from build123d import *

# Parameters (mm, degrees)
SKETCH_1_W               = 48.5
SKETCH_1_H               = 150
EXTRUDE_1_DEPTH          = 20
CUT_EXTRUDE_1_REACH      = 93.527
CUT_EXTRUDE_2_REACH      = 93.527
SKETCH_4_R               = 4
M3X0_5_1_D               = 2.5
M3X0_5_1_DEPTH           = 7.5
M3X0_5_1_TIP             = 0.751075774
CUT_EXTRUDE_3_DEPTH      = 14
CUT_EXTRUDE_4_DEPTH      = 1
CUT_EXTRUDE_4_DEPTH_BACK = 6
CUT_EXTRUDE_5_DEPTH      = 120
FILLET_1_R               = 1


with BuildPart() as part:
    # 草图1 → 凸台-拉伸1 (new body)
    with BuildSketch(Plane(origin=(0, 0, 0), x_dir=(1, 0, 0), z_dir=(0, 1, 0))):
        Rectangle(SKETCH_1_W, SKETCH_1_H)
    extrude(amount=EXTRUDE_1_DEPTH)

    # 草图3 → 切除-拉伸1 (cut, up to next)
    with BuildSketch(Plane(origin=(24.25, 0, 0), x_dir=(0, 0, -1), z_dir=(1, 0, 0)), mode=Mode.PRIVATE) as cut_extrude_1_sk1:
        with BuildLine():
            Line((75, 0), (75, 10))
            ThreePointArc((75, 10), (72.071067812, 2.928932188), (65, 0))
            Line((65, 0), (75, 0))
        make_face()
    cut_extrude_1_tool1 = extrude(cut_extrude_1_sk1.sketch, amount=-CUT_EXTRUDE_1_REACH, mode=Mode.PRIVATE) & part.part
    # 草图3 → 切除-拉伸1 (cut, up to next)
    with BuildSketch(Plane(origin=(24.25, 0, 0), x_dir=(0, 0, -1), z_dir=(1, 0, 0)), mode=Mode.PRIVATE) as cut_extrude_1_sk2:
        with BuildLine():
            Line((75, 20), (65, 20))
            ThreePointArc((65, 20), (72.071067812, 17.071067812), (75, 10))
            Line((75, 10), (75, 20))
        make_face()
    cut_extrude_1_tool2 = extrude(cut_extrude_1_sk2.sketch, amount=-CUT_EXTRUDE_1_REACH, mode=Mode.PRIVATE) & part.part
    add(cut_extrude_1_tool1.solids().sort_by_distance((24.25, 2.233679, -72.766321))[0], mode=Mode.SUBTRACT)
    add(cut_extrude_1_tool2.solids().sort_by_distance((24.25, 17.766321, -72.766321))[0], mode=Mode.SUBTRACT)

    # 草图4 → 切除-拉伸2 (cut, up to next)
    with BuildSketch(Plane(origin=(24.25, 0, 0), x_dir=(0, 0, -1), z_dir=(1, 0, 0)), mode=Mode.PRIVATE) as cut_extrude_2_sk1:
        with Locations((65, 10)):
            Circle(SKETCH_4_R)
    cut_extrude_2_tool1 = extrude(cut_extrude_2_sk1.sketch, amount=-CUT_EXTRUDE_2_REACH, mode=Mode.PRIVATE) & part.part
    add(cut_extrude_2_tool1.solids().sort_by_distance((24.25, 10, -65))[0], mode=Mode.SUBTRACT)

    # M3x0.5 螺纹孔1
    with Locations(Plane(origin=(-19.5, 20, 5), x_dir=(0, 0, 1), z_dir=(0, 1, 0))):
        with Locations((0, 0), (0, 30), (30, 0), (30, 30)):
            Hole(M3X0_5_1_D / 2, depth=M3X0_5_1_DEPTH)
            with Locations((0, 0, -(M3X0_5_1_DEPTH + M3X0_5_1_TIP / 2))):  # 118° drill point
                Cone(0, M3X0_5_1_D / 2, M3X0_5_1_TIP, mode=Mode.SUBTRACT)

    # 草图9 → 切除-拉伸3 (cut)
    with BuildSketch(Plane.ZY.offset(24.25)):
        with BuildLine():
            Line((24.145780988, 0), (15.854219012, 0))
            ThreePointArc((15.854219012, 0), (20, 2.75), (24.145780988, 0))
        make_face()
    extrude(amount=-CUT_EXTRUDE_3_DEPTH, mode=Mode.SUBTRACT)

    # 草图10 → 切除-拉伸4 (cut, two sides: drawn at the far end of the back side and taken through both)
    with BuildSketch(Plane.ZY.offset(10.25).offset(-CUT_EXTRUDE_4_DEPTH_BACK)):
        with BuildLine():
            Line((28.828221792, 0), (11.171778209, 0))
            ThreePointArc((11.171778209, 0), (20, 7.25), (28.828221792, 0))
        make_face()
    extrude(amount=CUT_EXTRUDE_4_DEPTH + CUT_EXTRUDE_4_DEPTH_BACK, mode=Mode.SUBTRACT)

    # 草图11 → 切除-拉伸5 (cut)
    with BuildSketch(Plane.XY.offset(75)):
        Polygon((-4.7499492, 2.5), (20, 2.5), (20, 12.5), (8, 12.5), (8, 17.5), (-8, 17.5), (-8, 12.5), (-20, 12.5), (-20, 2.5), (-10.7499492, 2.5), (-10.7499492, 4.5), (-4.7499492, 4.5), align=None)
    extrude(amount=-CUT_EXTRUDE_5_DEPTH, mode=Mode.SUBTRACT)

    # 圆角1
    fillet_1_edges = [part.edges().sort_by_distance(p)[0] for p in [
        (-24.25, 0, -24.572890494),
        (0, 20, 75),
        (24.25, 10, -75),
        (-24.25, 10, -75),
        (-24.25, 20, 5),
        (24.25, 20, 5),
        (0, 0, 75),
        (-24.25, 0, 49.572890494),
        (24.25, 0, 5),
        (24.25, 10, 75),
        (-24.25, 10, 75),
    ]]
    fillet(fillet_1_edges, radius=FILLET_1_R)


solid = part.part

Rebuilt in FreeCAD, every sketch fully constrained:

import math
import FreeCAD as App
import Part
import Sketcher

V = App.Vector


def edges_at(feature, points):
    """Names of the edges that pass closest to the given points."""
    edges = feature.Shape.Edges
    near = lambda p: min(range(len(edges)), key=lambda i: edges[i].distToShape(Part.Vertex(*p))[0])
    return sorted({f"Edge{near(p) + 1}" for p in points})


def add_polygon(sketch, points):
    """Adds a closed chain of lines whose ends are joined by coincident constraints."""
    first, n = sketch.GeometryCount, len(points)
    for a, b in zip(points, points[1:] + points[:1]):
        sketch.addGeometry(Part.LineSegment(App.Vector(*a, 0), App.Vector(*b, 0)), False)
    for i in range(n):
        sketch.addConstraint(Sketcher.Constraint("Coincident", first + i, 2, first + (i + 1) % n, 1))

doc = App.newDocument("Part")
body = doc.addObject("PartDesign::Body", "Body")

# Sketch on XZ plane
sketch1 = body.newObject("Sketcher::SketchObject", "Sketch")
sketch1.AttachmentSupport = (doc.getObject("XZ_Plane"), [""])
sketch1.MapMode = "FlatFace"
add_polygon(sketch1, [(-24.25, -75), (-24.25, 75), (24.25, 75), (24.25, -75)])  # lines 0-3
sketch1.addConstraint([
    Sketcher.Constraint("Vertical", 0),
    Sketcher.Constraint("Horizontal", 1),
    Sketcher.Constraint("Vertical", 2),
    Sketcher.Constraint("Horizontal", 3),
    Sketcher.Constraint("Symmetric", 0, 2, 2, 2, -1, 1),
    Sketcher.Constraint("DistanceY", 0, 1, 0, 2, 150.0),
    Sketcher.Constraint("DistanceX", 1, 1, 1, 2, 48.5),
])
pad1 = body.newObject("PartDesign::Pad", "Pad")
pad1.Profile = sketch1
pad1.Length = 20
pad1.Reversed = True

# Sketch on YZ plane
sketch2 = body.newObject("Sketcher::SketchObject", "Sketch001")
sketch2.AttachmentSupport = (doc.getObject("YZ_Plane"), [""])
sketch2.MapMode = "FlatFace"
sketch2.AttachmentOffset = App.Placement(V(0, 0, 24.25), App.Rotation())
sketch2.addGeometry([
    Part.LineSegment(V(0, -75, 0), V(10, -75, 0)),
    Part.ArcOfCircle(Part.Circle(V(10, -65, 0), V(0, 0, 1), 10), math.radians(180), math.radians(270)),
    Part.LineSegment(V(0, -65, 0), V(0, -75, 0)),
], False)
sketch2.addConstraint([
    Sketcher.Constraint("Tangent", 0, 2, 1, 2),
    Sketcher.Constraint("Tangent", 1, 1, 2, 1),
    Sketcher.Constraint("Coincident", 2, 2, 0, 1),
    Sketcher.Constraint("Horizontal", 0),
    Sketcher.Constraint("Vertical", 2),
    Sketcher.Constraint("PointOnObject", 1, 1, -2),
    Sketcher.Constraint("Radius", 1, 10.0),
    Sketcher.Constraint("DistanceY", 1, 3, -1, 1, 65.0),
])
pocket1 = body.newObject("PartDesign::Pocket", "Pocket")
pocket1.Profile = sketch2
pocket1.Type = "UpToFirst"

# Sketch on YZ plane
sketch3 = body.newObject("Sketcher::SketchObject", "Sketch002")
sketch3.AttachmentSupport = (doc.getObject("YZ_Plane"), [""])
sketch3.MapMode = "FlatFace"
sketch3.AttachmentOffset = App.Placement(V(0, 0, 24.25), App.Rotation())
sketch3.addGeometry([
    Part.LineSegment(V(20, -75, 0), V(20, -65, 0)),
    Part.ArcOfCircle(Part.Circle(V(10, -65, 0), V(0, 0, 1), 10), math.radians(-90), math.radians(0)),
    Part.LineSegment(V(10, -75, 0), V(20, -75, 0)),
], False)
sketch3.addConstraint([
    Sketcher.Constraint("Tangent", 0, 2, 1, 2),
    Sketcher.Constraint("Tangent", 1, 1, 2, 1),
    Sketcher.Constraint("Coincident", 2, 2, 0, 1),
    Sketcher.Constraint("Vertical", 0),
    Sketcher.Constraint("Horizontal", 2),
    Sketcher.Constraint("Radius", 1, 10.0),
    Sketcher.Constraint("DistanceX", -1, 1, 1, 3, 10.0),
    Sketcher.Constraint("DistanceY", 1, 3, -1, 1, 65.0),
])
pocket2 = body.newObject("PartDesign::Pocket", "Pocket001")
pocket2.Profile = sketch3
pocket2.Type = "UpToFirst"

# Sketch on YZ plane
sketch4 = body.newObject("Sketcher::SketchObject", "Sketch003")
sketch4.AttachmentSupport = (doc.getObject("YZ_Plane"), [""])
sketch4.MapMode = "FlatFace"
sketch4.AttachmentOffset = App.Placement(V(0, 0, 24.25), App.Rotation())
sketch4.addGeometry(Part.Circle(V(10, -65, 0), V(0, 0, 1), 4), False)
sketch4.addConstraint([
    Sketcher.Constraint("Diameter", 0, 8.0),
    Sketcher.Constraint("DistanceX", -1, 1, 0, 3, 10.0),
    Sketcher.Constraint("DistanceY", 0, 3, -1, 1, 65.0),
])
pocket3 = body.newObject("PartDesign::Pocket", "Pocket002")
pocket3.Profile = sketch4
pocket3.Type = "UpToFirst"

# Sketch on XZ plane
sketch5 = body.newObject("Sketcher::SketchObject", "Sketch004")
sketch5.AttachmentSupport = (doc.getObject("XZ_Plane"), [""])
sketch5.MapMode = "FlatFace"
sketch5.AttachmentOffset = App.Placement(V(0, 0, -20), App.Rotation())
sketch5.addGeometry([
    Part.Circle(V(-19.5, 5, 0), V(0, 0, 1), 1.25),
    Part.Circle(V(10.5, 5, 0), V(0, 0, 1), 1.25),
    Part.Circle(V(-19.5, 35, 0), V(0, 0, 1), 1.25),
    Part.Circle(V(10.5, 35, 0), V(0, 0, 1), 1.25),
], False)
sketch5.addConstraint([
    Sketcher.Constraint("Equal", 0, 1),
    Sketcher.Constraint("Equal", 1, 2),
    Sketcher.Constraint("Equal", 2, 3),
    Sketcher.Constraint("Horizontal", 0, 3, 1, 3),
    Sketcher.Constraint("Horizontal", 2, 3, 3, 3),
    Sketcher.Constraint("Vertical", 0, 3, 2, 3),
    Sketcher.Constraint("Vertical", 1, 3, 3, 3),
    Sketcher.Constraint("Diameter", 0, 2.5),
    Sketcher.Constraint("DistanceY", -1, 1, 0, 3, 5.0),
    Sketcher.Constraint("DistanceY", -1, 1, 2, 3, 35.0),
    Sketcher.Constraint("DistanceX", 0, 3, 1, 3, 30.0),
    Sketcher.Constraint("DistanceX", 0, 3, -1, 1, 19.5),
])
doc.recompute()
hole = body.newObject("PartDesign::Hole", "Hole")
hole.Profile = sketch5
hole.ThreadType = "None"
hole.Diameter = 2.5
hole.DepthType = "Dimension"
hole.Depth = 7.5
hole.DrillPoint = "Angled"
hole.DrillPointAngle = 118
hole.Reversed = True

# Sketch on YZ plane
sketch6 = body.newObject("Sketcher::SketchObject", "Sketch005")
sketch6.AttachmentSupport = (doc.getObject("YZ_Plane"), [""])
sketch6.MapMode = "FlatFace"
sketch6.AttachmentOffset = App.Placement(V(0, 0, -24.25), App.Rotation())
sketch6.addGeometry([
    Part.LineSegment(V(0, 15.854219, 0), V(0, 24.145781, 0)),
    Part.ArcOfCircle(Part.Circle(V(-1.75, 20, 0), V(0, 0, 1), 4.5), math.radians(-67.11462), math.radians(67.11462)),
], False)
sketch6.addConstraint([
    Sketcher.Constraint("Coincident", 0, 1, 1, 1),
    Sketcher.Constraint("Coincident", 1, 2, 0, 2),
    Sketcher.Constraint("Vertical", 0),
    Sketcher.Constraint("PointOnObject", 0, 1, -2),
    Sketcher.Constraint("Radius", 1, 4.5),
    Sketcher.Constraint("DistanceY", -1, 1, 1, 3, 20.0),
    Sketcher.Constraint("DistanceX", 1, 3, -1, 1, 1.75),
])
pocket4 = body.newObject("PartDesign::Pocket", "Pocket003")
pocket4.Profile = sketch6
pocket4.Length = 14
pocket4.Reversed = True

# Sketch on YZ plane
sketch7 = body.newObject("Sketcher::SketchObject", "Sketch006")
sketch7.AttachmentSupport = (doc.getObject("YZ_Plane"), [""])
sketch7.MapMode = "FlatFace"
sketch7.AttachmentOffset = App.Placement(V(0, 0, -10.25), App.Rotation())
sketch7.addGeometry([
    Part.LineSegment(V(0, 11.171778, 0), V(0, 28.828222, 0)),
    Part.ArcOfCircle(Part.Circle(V(-1.75, 20, 0), V(0, 0, 1), 9), math.radians(-78.787729), math.radians(78.787729)),
], False)
sketch7.addConstraint([
    Sketcher.Constraint("Coincident", 0, 1, 1, 1),
    Sketcher.Constraint("Coincident", 1, 2, 0, 2),
    Sketcher.Constraint("Vertical", 0),
    Sketcher.Constraint("PointOnObject", 0, 1, -2),
    Sketcher.Constraint("Radius", 1, 9.0),
    Sketcher.Constraint("DistanceY", -1, 1, 1, 3, 20.0),
    Sketcher.Constraint("DistanceX", 1, 3, -1, 1, 1.75),
])
pocket5 = body.newObject("PartDesign::Pocket", "Pocket004")
pocket5.Profile = sketch7
pocket5.Type = "TwoLengths"
pocket5.Length = 1
pocket5.Length2 = 6

# Sketch on XY plane
sketch8 = body.newObject("Sketcher::SketchObject", "Sketch007")
sketch8.AttachmentSupport = (doc.getObject("XY_Plane"), [""])
sketch8.MapMode = "FlatFace"
sketch8.AttachmentOffset = App.Placement(V(0, 0, 75), App.Rotation())
add_polygon(sketch8, [(-4.749949, 2.5), (20, 2.5), (20, 12.5), (8, 12.5), (8, 17.5), (-8, 17.5), (-8, 12.5), (-20, 12.5), (-20, 2.5), (-10.749949, 2.5), (-10.749949, 4.5), (-4.749949, 4.5)])  # lines 0-11
sketch8.addConstraint([
    Sketcher.Constraint("Horizontal", 0),
    Sketcher.Constraint("Vertical", 1),
    Sketcher.Constraint("Horizontal", 2),
    Sketcher.Constraint("Vertical", 3),
    Sketcher.Constraint("Horizontal", 4),
    Sketcher.Constraint("Vertical", 5),
    Sketcher.Constraint("Horizontal", 6),
    Sketcher.Constraint("Vertical", 7),
    Sketcher.Constraint("Horizontal", 8),
    Sketcher.Constraint("Vertical", 9),
    Sketcher.Constraint("Horizontal", 10),
    Sketcher.Constraint("Vertical", 11),
    Sketcher.Constraint("Symmetric", 2, 2, 5, 2, -2),
    Sketcher.Constraint("Symmetric", 0, 2, 7, 2, -2),
    Sketcher.Constraint("DistanceX", 2, 2, 2, 1, 12.0),
    Sketcher.Constraint("DistanceX", 4, 2, 4, 1, 16.0),
    Sketcher.Constraint("DistanceX", 10, 1, 10, 2, 6.0),
    Sketcher.Constraint("DistanceY", 1, 1, 1, 2, 10.0),
    Sketcher.Constraint("DistanceY", 3, 1, 3, 2, 5.0),
    Sketcher.Constraint("DistanceY", 9, 1, 9, 2, 2.0),
    Sketcher.Constraint("DistanceY", -1, 1, 0, 2, 2.5),
    Sketcher.Constraint("DistanceX", 0, 1, 0, 2, 24.749949),
])
pocket6 = body.newObject("PartDesign::Pocket", "Pocket005")
pocket6.Profile = sketch8
pocket6.Length = 120
doc.recompute()

fillet = body.newObject("PartDesign::Fillet", "Fillet")
fillet.Base = (pocket6, edges_at(pocket6, [
    (-24.25, 0, -24.573),
    (0, 20, 75),
    (24.25, 2.929, -72.071),
    (-24.25, 2.929, -72.071),
    (-24.25, 20, 5),
    (24.25, 20, 5),
    (0, 0, 75),
    (-24.25, 0, 49.573),
    (24.25, 0, 5),
    (24.25, 10, 75),
    (-24.25, 10, 75),
]))
fillet.Radius = 1

doc.recompute()
